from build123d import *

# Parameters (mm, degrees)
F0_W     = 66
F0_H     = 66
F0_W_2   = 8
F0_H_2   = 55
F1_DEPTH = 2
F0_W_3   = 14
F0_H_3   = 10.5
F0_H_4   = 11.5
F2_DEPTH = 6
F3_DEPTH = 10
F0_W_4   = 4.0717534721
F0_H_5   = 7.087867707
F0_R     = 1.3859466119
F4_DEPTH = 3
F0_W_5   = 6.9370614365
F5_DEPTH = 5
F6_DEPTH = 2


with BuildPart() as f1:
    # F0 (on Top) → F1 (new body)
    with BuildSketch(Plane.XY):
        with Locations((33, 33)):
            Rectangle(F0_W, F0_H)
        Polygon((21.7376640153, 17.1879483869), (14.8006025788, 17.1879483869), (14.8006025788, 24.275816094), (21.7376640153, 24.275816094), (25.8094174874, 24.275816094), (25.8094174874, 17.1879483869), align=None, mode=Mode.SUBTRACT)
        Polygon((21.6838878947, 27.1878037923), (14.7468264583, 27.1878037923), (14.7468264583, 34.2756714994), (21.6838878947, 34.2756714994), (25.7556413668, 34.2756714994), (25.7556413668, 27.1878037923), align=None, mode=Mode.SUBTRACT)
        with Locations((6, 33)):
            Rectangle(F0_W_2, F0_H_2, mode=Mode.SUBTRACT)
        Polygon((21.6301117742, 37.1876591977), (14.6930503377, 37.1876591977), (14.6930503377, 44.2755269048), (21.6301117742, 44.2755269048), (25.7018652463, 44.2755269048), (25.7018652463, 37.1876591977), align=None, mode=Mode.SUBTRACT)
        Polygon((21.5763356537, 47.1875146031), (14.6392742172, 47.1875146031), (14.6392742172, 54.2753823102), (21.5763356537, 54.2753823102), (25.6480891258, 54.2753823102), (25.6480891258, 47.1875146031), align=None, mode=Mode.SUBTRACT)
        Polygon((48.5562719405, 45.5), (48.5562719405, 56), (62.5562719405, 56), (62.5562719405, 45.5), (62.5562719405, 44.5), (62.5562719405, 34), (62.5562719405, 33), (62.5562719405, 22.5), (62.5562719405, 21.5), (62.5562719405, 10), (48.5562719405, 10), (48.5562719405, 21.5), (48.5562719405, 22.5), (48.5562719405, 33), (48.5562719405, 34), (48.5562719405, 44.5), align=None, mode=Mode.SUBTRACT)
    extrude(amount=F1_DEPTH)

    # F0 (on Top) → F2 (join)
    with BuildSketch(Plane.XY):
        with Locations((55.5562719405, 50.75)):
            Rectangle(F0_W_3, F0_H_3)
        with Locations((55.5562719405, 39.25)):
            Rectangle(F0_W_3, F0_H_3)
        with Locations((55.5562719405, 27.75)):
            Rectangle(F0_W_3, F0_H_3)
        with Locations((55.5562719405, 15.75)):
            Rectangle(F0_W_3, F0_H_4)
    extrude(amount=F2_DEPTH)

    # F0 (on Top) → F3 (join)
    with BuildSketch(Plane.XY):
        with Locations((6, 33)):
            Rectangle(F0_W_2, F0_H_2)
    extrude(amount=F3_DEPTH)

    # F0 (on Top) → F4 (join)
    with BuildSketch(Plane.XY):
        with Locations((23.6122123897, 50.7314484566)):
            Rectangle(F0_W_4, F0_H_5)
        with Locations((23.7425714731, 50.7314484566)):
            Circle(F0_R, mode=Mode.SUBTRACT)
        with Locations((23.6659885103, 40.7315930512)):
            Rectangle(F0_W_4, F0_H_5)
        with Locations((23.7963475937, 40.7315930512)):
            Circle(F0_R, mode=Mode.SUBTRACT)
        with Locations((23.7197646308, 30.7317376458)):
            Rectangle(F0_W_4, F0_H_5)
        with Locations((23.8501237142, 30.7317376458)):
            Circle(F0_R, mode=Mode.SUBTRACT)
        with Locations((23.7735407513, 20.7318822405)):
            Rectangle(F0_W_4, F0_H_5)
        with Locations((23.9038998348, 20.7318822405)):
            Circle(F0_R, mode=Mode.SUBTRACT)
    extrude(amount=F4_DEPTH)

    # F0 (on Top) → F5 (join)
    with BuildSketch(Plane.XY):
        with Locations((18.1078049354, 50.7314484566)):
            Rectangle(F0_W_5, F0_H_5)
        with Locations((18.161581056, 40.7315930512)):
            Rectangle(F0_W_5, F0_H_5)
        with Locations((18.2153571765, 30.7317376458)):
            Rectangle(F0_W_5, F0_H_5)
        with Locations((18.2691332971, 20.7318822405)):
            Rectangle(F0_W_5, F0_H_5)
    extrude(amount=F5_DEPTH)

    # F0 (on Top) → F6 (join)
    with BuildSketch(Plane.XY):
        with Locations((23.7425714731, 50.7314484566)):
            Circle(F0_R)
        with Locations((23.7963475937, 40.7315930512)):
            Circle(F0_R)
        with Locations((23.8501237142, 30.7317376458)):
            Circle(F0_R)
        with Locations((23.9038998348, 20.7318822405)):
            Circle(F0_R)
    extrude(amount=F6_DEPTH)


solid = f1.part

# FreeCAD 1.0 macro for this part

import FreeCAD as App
import Part
import Sketcher


def add_polygon(sketch, points):
    """Adds a closed chain of lines whose ends are joined by coincident constraints."""
    first, n = sketch.GeometryCount, len(points)
    for a, b in zip(points, points[1:] + points[:1]):
        sketch.addGeometry(Part.LineSegment(App.Vector(*a, 0), App.Vector(*b, 0)), False)
    for i in range(n):
        sketch.addConstraint(Sketcher.Constraint("Coincident", first + i, 2, first + (i + 1) % n, 1))

doc = App.newDocument("Part")
body = doc.addObject("PartDesign::Body", "Body")

# Sketch on XY plane
sketch1 = body.newObject("Sketcher::SketchObject", "Sketch")
sketch1.AttachmentSupport = (doc.getObject("XY_Plane"), [""])
sketch1.MapMode = "FlatFace"
add_polygon(sketch1, [(0, 66), (0, 0), (66, 0), (66, 66)])  # lines 0-3
add_polygon(sketch1, [(26, 17), (15, 17), (15, 24), (26, 24)])  # lines 4-7
add_polygon(sketch1, [(26, 27), (15, 27), (15, 34), (26, 34)])  # lines 8-11
add_polygon(sketch1, [(10, 6), (2, 6), (2, 60), (10, 60)])  # lines 12-15
add_polygon(sketch1, [(26, 37), (15, 37), (15, 44), (26, 44)])  # lines 16-19
add_polygon(sketch1, [(26, 47), (15, 47), (15, 54), (26, 54)])  # lines 20-23
add_polygon(sketch1, [(49, 10), (49, 56), (63, 56), (63, 10)])  # lines 24-27
sketch1.addConstraint([
    Sketcher.Constraint("Vertical", 0),
    Sketcher.Constraint("Horizontal", 1),
    Sketcher.Constraint("Vertical", 2),
    Sketcher.Constraint("Horizontal", 3),
    Sketcher.Constraint("Horizontal", 4),
    Sketcher.Constraint("Vertical", 5),
    Sketcher.Constraint("Horizontal", 6),
    Sketcher.Constraint("Vertical", 7),
    Sketcher.Constraint("Horizontal", 8),
    Sketcher.Constraint("Vertical", 9),
    Sketcher.Constraint("Horizontal", 10),
    Sketcher.Constraint("Vertical", 11),
    Sketcher.Constraint("Horizontal", 12),
    Sketcher.Constraint("Vertical", 13),
    Sketcher.Constraint("Horizontal", 14),
    Sketcher.Constraint("Vertical", 15),
    Sketcher.Constraint("Horizontal", 16),
    Sketcher.Constraint("Vertical", 17),
    Sketcher.Constraint("Horizontal", 18),
    Sketcher.Constraint("Vertical", 19),
    Sketcher.Constraint("Horizontal", 20),
    Sketcher.Constraint("Vertical", 21),
    Sketcher.Constraint("Horizontal", 22),
    Sketcher.Constraint("Vertical", 23),
    Sketcher.Constraint("Vertical", 24),
    Sketcher.Constraint("Horizontal", 25),
    Sketcher.Constraint("Vertical", 26),
    Sketcher.Constraint("Horizontal", 27),
    Sketcher.Constraint("Coincident", 0, 2, -1, 1),
    Sketcher.Constraint("Equal", 6, 8),
    Sketcher.Constraint("Equal", 10, 16),
    Sketcher.Constraint("Equal", 18, 20),
    Sketcher.Constraint("Equal", 3, 0),
    Sketcher.Constraint("Equal", 7, 9),
    Sketcher.Constraint("Equal", 11, 17),
    Sketcher.Constraint("Equal", 19, 21),
    Sketcher.Constraint("DistanceX", 1, 1, 1, 2, 66.0),
    Sketcher.Constraint("DistanceX", 12, 2, 12, 1, 8.0),
    Sketcher.Constraint("DistanceX", 25, 1, 25, 2, 14.0),
    Sketcher.Constraint("DistanceY", 13, 1, 13, 2, 55.0),
    Sketcher.Constraint("DistanceY", 24, 1, 24, 2, 46.0),
    Sketcher.Constraint("DistanceX", -1, 1, 12, 2, 2.0),
    Sketcher.Constraint("DistanceY", -1, 1, 24, 2, 56.0),
    Sketcher.Constraint("DistanceY", -1, 1, 12, 2, 5.5),
    Sketcher.Constraint("DistanceX", 4, 2, 4, 1, 11.008815),
    Sketcher.Constraint("DistanceY", 5, 1, 5, 2, 7.087868),
    Sketcher.Constraint("DistanceY", -1, 1, 4, 2, 17.187948),
    Sketcher.Constraint("DistanceY", -1, 1, 9, 2, 34.275671),
    Sketcher.Constraint("DistanceX", -1, 1, 10, 2, 25.755641),
    Sketcher.Constraint("DistanceX", -1, 1, 16, 2, 14.69305),
    Sketcher.Constraint("DistanceY", -1, 1, 16, 2, 37.187659),
    Sketcher.Constraint("DistanceX", -1, 1, 22, 2, 25.648089),
    Sketcher.Constraint("DistanceX", -1, 1, 24, 2, 48.556272),
    Sketcher.Constraint("DistanceX", 8, 2, 6, 2, 11.062591),
    Sketcher.Constraint("DistanceY", -1, 1, 20, 2, 47.187515),
])
pad1 = body.newObject("PartDesign::Pad", "Pad")
pad1.Profile = sketch1
pad1.Length = 2

# Sketch on XY plane
sketch2 = body.newObject("Sketcher::SketchObject", "Sketch001")
sketch2.AttachmentSupport = (doc.getObject("XY_Plane"), [""])
sketch2.MapMode = "FlatFace"
add_polygon(sketch2, [(49, 56), (49, 46), (63, 46), (63, 56)])  # lines 0-3
add_polygon(sketch2, [(49, 44), (49, 34), (63, 34), (63, 44)])  # lines 4-7
add_polygon(sketch2, [(49, 33), (49, 22), (63, 22), (63, 33)])  # lines 8-11
add_polygon(sketch2, [(49, 22), (49, 10), (63, 10), (63, 22)])  # lines 12-15
sketch2.addConstraint([
    Sketcher.Constraint("Vertical", 0),
    Sketcher.Constraint("Horizontal", 1),
    Sketcher.Constraint("Vertical", 2),
    Sketcher.Constraint("Horizontal", 3),
    Sketcher.Constraint("Vertical", 4),
    Sketcher.Constraint("Horizontal", 5),
    Sketcher.Constraint("Vertical", 6),
    Sketcher.Constraint("Horizontal", 7),
    Sketcher.Constraint("Vertical", 8),
    Sketcher.Constraint("Horizontal", 9),
    Sketcher.Constraint("Vertical", 10),
    Sketcher.Constraint("Horizontal", 11),
    Sketcher.Constraint("Vertical", 12),
    Sketcher.Constraint("Horizontal", 13),
    Sketcher.Constraint("Vertical", 14),
    Sketcher.Constraint("Horizontal", 15),
    Sketcher.Constraint("Vertical", 3, 2, 4, 2),
    Sketcher.Constraint("Vertical", 2, 2, 5, 2),
    Sketcher.Constraint("Vertical", 7, 2, 8, 2),
    Sketcher.Constraint("Vertical", 6, 2, 9, 2),
    Sketcher.Constraint("Vertical", 11, 2, 12, 2),
    Sketcher.Constraint("Vertical", 10, 2, 13, 2),
    Sketcher.Constraint("Equal", 2, 4),
    Sketcher.Constraint("Equal", 6, 8),
    Sketcher.Constraint("DistanceX", 1, 1, 1, 2, 14.0),
    Sketcher.Constraint("DistanceY", 0, 2, 0, 1, 10.5),
    Sketcher.Constraint("DistanceY", 12, 2, 12, 1, 11.5),
    Sketcher.Constraint("DistanceY", -1, 1, 2, 2, 56.0),
    Sketcher.Constraint("DistanceY", -1, 1, 4, 2, 34.0),
    Sketcher.Constraint("DistanceY", -1, 1, 10, 2, 33.0),
    Sketcher.Constraint("DistanceY", -1, 1, 12, 2, 10.0),
    Sketcher.Constraint("DistanceX", -1, 1, 0, 2, 48.556272),
])
pad2 = body.newObject("PartDesign::Pad", "Pad001")
pad2.Profile = sketch2
pad2.Length = 6

# Sketch on XY plane
sketch3 = body.newObject("Sketcher::SketchObject", "Sketch002")
sketch3.AttachmentSupport = (doc.getObject("XY_Plane"), [""])
sketch3.MapMode = "FlatFace"
add_polygon(sketch3, [(2, 60), (2, 6), (10, 6), (10, 60)])  # lines 0-3
sketch3.addConstraint([
    Sketcher.Constraint("Vertical", 0),
    Sketcher.Constraint("Horizontal", 1),
    Sketcher.Constraint("Vertical", 2),
    Sketcher.Constraint("Horizontal", 3),
    Sketcher.Constraint("DistanceX", 1, 1, 1, 2, 8.0),
    Sketcher.Constraint("DistanceY", 0, 2, 0, 1, 55.0),
    Sketcher.Constraint("DistanceX", -1, 1, 0, 2, 2.0),
    Sketcher.Constraint("DistanceY", -1, 1, 0, 2, 5.5),
])
pad3 = body.newObject("PartDesign::Pad", "Pad002")
pad3.Profile = sketch3
pad3.Length = 10

# Sketch on XY plane
sketch4 = body.newObject("Sketcher::SketchObject", "Sketch003")
sketch4.AttachmentSupport = (doc.getObject("XY_Plane"), [""])
sketch4.MapMode = "FlatFace"
add_polygon(sketch4, [(21.6, 54.3), (21.6, 47.2), (25.6, 47.2), (25.6, 54.3)])  # lines 0-3
sketch4.addGeometry(Part.Circle(App.Vector(23.7, 50.7, 0), App.Vector(0, 0, 1), 1.4), False)  # 4
add_polygon(sketch4, [(21.6, 44.3), (21.6, 37.2), (25.7, 37.2), (25.7, 44.3)])  # lines 5-8
sketch4.addGeometry(Part.Circle(App.Vector(23.8, 40.7, 0), App.Vector(0, 0, 1), 1.4), False)  # 9
add_polygon(sketch4, [(21.7, 34.3), (21.7, 27.2), (25.8, 27.2), (25.8, 34.3)])  # lines 10-13
sketch4.addGeometry(Part.Circle(App.Vector(23.9, 30.7, 0), App.Vector(0, 0, 1), 1.4), False)  # 14
add_polygon(sketch4, [(21.7, 24.3), (21.7, 17.2), (25.8, 17.2), (25.8, 24.3)])  # lines 15-18
sketch4.addGeometry(Part.Circle(App.Vector(23.9, 20.7, 0), App.Vector(0, 0, 1), 1.4), False)  # 19
sketch4.addConstraint([
    Sketcher.Constraint("Vertical", 0),
    Sketcher.Constraint("Horizontal", 1),
    Sketcher.Constraint("Vertical", 2),
    Sketcher.Constraint("Horizontal", 3),
    Sketcher.Constraint("Vertical", 5),
    Sketcher.Constraint("Horizontal", 6),
    Sketcher.Constraint("Vertical", 7),
    Sketcher.Constraint("Horizontal", 8),
    Sketcher.Constraint("Vertical", 10),
    Sketcher.Constraint("Horizontal", 11),
    Sketcher.Constraint("Vertical", 12),
    Sketcher.Constraint("Horizontal", 13),
    Sketcher.Constraint("Vertical", 15),
    Sketcher.Constraint("Horizontal", 16),
    Sketcher.Constraint("Vertical", 17),
    Sketcher.Constraint("Horizontal", 18),
    Sketcher.Constraint("Equal", 4, 9),
    Sketcher.Constraint("Equal", 9, 14),
    Sketcher.Constraint("Equal", 14, 19),
    Sketcher.Constraint("Equal", 3, 6),
    Sketcher.Constraint("Equal", 8, 11),
    Sketcher.Constraint("Equal", 13, 16),
    Sketcher.Constraint("Equal", 2, 5),
    Sketcher.Constraint("Equal", 7, 10),
    Sketcher.Constraint("Equal", 12, 15),
    Sketcher.Constraint("Diameter", 4, 2.771893),
    Sketcher.Constraint("DistanceX", -1, 1, 19, 3, 23.9039),
    Sketcher.Constraint("DistanceX", 1, 1, 1, 2, 4.071753),
    Sketcher.Constraint("DistanceY", 0, 2, 0, 1, 7.087868),
    Sketcher.Constraint("DistanceX", -1, 1, 4, 3, 23.742571),
    Sketcher.Constraint("DistanceY", -1, 1, 4, 3, 50.731448),
    Sketcher.Constraint("DistanceX", -1, 1, 1, 2, 25.648089),
    Sketcher.Constraint("DistanceX", -1, 1, 5, 2, 21.630112),
    Sketcher.Constraint("DistanceY", -1, 1, 5, 2, 37.187659),
    Sketcher.Constraint("DistanceX", -1, 1, 11, 2, 25.755641),
    Sketcher.Constraint("DistanceY", -1, 1, 12, 2, 34.275671),
    Sketcher.Constraint("DistanceY", -1, 1, 15, 2, 17.187948),
    Sketcher.Constraint("DistanceY", 14, 3, 4, 3, 19.999711),
    Sketcher.Constraint("DistanceY", 19, 3, 9, 3, 19.999711),
    Sketcher.Constraint("DistanceX", 0, 2, 9, 3, 2.220012),
    Sketcher.Constraint("DistanceY", 9, 3, 0, 2, 6.455922),
    Sketcher.Constraint("DistanceX", 0, 2, 14, 3, 2.273788),
    Sketcher.Constraint("DistanceY", 19, 3, 10, 2, 6.455922),
    Sketcher.Constraint("DistanceX", 15, 2, 14, 3, 2.11246),
])
pad4 = body.newObject("PartDesign::Pad", "Pad003")
pad4.Profile = sketch4
pad4.Length = 3

# Sketch on XY plane
sketch5 = body.newObject("Sketcher::SketchObject", "Sketch004")
sketch5.AttachmentSupport = (doc.getObject("XY_Plane"), [""])
sketch5.MapMode = "FlatFace"
add_polygon(sketch5, [(15, 54), (15, 47), (22, 47), (22, 54)])  # lines 0-3
add_polygon(sketch5, [(15, 44), (15, 37), (22, 37), (22, 44)])  # lines 4-7
add_polygon(sketch5, [(15, 34), (15, 27), (22, 27), (22, 34)])  # lines 8-11
add_polygon(sketch5, [(15, 24), (15, 17), (22, 17), (22, 24)])  # lines 12-15
sketch5.addConstraint([
    Sketcher.Constraint("Vertical", 0),
    Sketcher.Constraint("Horizontal", 1),
    Sketcher.Constraint("Vertical", 2),
    Sketcher.Constraint("Horizontal", 3),
    Sketcher.Constraint("Vertical", 4),
    Sketcher.Constraint("Horizontal", 5),
    Sketcher.Constraint("Vertical", 6),
    Sketcher.Constraint("Horizontal", 7),
    Sketcher.Constraint("Vertical", 8),
    Sketcher.Constraint("Horizontal", 9),
    Sketcher.Constraint("Vertical", 10),
    Sketcher.Constraint("Horizontal", 11),
    Sketcher.Constraint("Vertical", 12),
    Sketcher.Constraint("Horizontal", 13),
    Sketcher.Constraint("Vertical", 14),
    Sketcher.Constraint("Horizontal", 15),
    Sketcher.Constraint("Equal", 3, 5),
    Sketcher.Constraint("Equal", 7, 9),
    Sketcher.Constraint("Equal", 11, 13),
    Sketcher.Constraint("Equal", 2, 4),
    Sketcher.Constraint("Equal", 6, 8),
    Sketcher.Constraint("Equal", 10, 12),
    Sketcher.Constraint("DistanceX", 1, 1, 1, 2, 6.937061),
    Sketcher.Constraint("DistanceY", 0, 2, 0, 1, 7.087868),
    Sketcher.Constraint("DistanceX", -1, 1, 4, 2, 14.69305),
    Sketcher.Constraint("DistanceY", -1, 1, 4, 2, 37.187659),
    Sketcher.Constraint("DistanceY", -1, 1, 10, 2, 34.275671),
    Sketcher.Constraint("DistanceY", -1, 1, 12, 2, 17.187948),
    Sketcher.Constraint("DistanceY", 8, 2, 0, 2, 19.999711),
    Sketcher.Constraint("DistanceX", -1, 1, 0, 2, 14.639274),
    Sketcher.Constraint("DistanceX", -1, 1, 8, 2, 14.746826),
    Sketcher.Constraint("DistanceX", -1, 1, 12, 2, 14.800603),
])
pad5 = body.newObject("PartDesign::Pad", "Pad004")
pad5.Profile = sketch5
pad5.Length = 5

# Sketch on XY plane
sketch6 = body.newObject("Sketcher::SketchObject", "Sketch005")
sketch6.AttachmentSupport = (doc.getObject("XY_Plane"), [""])
sketch6.MapMode = "FlatFace"
sketch6.addGeometry([
    Part.Circle(App.Vector(23.7, 50.7, 0), App.Vector(0, 0, 1), 1.4),
    Part.Circle(App.Vector(23.8, 40.7, 0), App.Vector(0, 0, 1), 1.4),
    Part.Circle(App.Vector(23.9, 30.7, 0), App.Vector(0, 0, 1), 1.4),
    Part.Circle(App.Vector(23.9, 20.7, 0), App.Vector(0, 0, 1), 1.4),
], False)
sketch6.addConstraint([
    Sketcher.Constraint("Equal", 0, 1),
    Sketcher.Constraint("Equal", 1, 2),
    Sketcher.Constraint("Equal", 2, 3),
    Sketcher.Constraint("Diameter", 0, 2.771893),
    Sketcher.Constraint("DistanceX", -1, 1, 3, 3, 23.9039),
    Sketcher.Constraint("DistanceX", -1, 1, 0, 3, 23.742571),
    Sketcher.Constraint("DistanceY", -1, 1, 0, 3, 50.731448),
    Sketcher.Constraint("DistanceY", 2, 3, 0, 3, 19.999711),
    Sketcher.Constraint("DistanceY", 3, 3, 1, 3, 19.999711),
    Sketcher.Constraint("DistanceX", -1, 1, 1, 3, 23.796348),
    Sketcher.Constraint("DistanceY", -1, 1, 1, 3, 40.731593),
    Sketcher.Constraint("DistanceX", -1, 1, 2, 3, 23.850124),
])
pad6 = body.newObject("PartDesign::Pad", "Pad005")
pad6.Profile = sketch6
pad6.Length = 2

doc.recompute()
